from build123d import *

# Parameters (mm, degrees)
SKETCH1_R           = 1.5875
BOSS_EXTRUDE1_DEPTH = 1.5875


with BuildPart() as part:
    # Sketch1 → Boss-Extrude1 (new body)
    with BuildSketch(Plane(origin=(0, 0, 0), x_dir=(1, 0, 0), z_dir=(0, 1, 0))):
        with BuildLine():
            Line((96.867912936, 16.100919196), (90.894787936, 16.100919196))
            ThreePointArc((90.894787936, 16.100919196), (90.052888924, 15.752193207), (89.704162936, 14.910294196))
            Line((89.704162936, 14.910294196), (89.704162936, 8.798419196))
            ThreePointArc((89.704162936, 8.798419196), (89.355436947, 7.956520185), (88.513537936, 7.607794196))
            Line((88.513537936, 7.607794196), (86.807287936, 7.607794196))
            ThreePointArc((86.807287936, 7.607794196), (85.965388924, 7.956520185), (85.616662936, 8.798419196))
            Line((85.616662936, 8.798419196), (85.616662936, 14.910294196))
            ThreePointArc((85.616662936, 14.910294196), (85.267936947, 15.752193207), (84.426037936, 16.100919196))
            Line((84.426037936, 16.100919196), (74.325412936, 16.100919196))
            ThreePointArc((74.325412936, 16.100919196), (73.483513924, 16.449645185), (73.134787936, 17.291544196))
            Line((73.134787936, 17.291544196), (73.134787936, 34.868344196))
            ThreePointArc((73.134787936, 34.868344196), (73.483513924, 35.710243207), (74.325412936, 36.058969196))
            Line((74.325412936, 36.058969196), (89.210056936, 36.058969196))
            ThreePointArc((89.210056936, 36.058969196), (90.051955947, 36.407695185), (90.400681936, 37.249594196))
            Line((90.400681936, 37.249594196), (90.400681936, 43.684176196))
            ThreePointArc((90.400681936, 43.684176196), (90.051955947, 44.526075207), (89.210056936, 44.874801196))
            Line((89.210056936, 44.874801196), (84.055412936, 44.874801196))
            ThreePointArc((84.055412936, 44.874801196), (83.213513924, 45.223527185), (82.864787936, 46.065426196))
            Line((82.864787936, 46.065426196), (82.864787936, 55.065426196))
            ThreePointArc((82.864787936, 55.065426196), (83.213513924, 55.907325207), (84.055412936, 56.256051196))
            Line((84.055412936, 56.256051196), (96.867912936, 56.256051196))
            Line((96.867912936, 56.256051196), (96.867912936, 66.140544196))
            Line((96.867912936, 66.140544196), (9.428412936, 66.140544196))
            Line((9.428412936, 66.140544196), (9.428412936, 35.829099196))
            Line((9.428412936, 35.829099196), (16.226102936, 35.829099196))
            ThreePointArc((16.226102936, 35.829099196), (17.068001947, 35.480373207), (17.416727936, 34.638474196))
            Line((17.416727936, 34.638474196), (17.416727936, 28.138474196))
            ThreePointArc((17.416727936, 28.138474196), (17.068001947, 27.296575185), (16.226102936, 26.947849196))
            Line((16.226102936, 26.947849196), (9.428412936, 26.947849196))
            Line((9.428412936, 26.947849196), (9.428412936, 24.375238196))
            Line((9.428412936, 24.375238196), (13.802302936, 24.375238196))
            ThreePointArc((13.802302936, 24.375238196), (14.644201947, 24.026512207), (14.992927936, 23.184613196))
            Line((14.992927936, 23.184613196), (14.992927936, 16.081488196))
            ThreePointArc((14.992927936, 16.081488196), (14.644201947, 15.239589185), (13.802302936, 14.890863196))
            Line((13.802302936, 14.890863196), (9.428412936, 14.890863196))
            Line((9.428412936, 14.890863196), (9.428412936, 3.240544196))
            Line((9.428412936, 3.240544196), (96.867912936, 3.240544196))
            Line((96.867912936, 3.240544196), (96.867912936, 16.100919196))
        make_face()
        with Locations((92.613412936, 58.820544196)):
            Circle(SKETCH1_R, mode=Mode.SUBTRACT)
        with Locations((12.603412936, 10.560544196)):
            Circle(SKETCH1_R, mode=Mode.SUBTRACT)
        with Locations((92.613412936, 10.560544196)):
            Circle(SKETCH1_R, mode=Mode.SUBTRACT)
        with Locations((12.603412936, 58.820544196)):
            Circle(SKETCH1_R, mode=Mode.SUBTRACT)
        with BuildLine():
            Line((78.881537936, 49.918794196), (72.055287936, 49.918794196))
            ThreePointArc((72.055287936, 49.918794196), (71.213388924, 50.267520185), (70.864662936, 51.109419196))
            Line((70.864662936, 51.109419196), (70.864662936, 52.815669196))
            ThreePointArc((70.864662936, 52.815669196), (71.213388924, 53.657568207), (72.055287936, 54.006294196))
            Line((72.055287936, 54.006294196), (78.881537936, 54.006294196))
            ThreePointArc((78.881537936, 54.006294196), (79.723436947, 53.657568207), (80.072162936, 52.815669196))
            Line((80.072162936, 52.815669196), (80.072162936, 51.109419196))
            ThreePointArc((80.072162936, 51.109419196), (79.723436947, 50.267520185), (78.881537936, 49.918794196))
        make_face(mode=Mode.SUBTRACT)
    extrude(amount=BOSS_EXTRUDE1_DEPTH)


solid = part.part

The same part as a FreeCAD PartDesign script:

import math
import FreeCAD as App
import Part
import Sketcher

V = App.Vector
Q = App.Units.Quantity

doc = App.newDocument("Part")
body = doc.addObject("PartDesign::Body", "Body")

sketch1 = body.newObject("Sketcher::SketchObject", "Sketch")
sketch1.AttachmentSupport = (doc.getObject("XZ_Plane"), [""])
sketch1.MapMode = "FlatFace"
sketch1.addGeometry(Part.LineSegment(V(96.9, -16.1, 0), V(90.9, -16.1, 0)), False)
sketch1.addGeometry(Part.ArcOfCircle(Part.Circle(V(90.9, -14.9, 0), V(0, 0, 1), 1.2), math.radians(180), math.radians(270)), False)
sketch1.addGeometry(Part.LineSegment(V(89.7, -14.9, 0), V(89.7, -8.8, 0)), False)
sketch1.addGeometry(Part.ArcOfCircle(Part.Circle(V(88.5, -8.8, 0), V(0, 0, 1), 1.2), math.radians(0), math.radians(90)), False)
sketch1.addGeometry(Part.LineSegment(V(88.5, -7.6, 0), V(86.8, -7.6, 0)), False)
sketch1.addGeometry(Part.ArcOfCircle(Part.Circle(V(86.8, -8.8, 0), V(0, 0, 1), 1.2), math.radians(90), math.radians(180)), False)
sketch1.addGeometry(Part.LineSegment(V(85.6, -8.8, 0), V(85.6, -14.9, 0)), False)
sketch1.addGeometry(Part.ArcOfCircle(Part.Circle(V(84.4, -14.9, 0), V(0, 0, 1), 1.2), math.radians(-90), math.radians(0)), False)
sketch1.addGeometry(Part.LineSegment(V(84.4, -16.1, 0), V(74.3, -16.1, 0)), False)
sketch1.addGeometry(Part.ArcOfCircle(Part.Circle(V(74.3, -17.3, 0), V(0, 0, 1), 1.2), math.radians(90), math.radians(180)), False)
sketch1.addGeometry(Part.LineSegment(V(73.1, -17.3, 0), V(73.1, -34.9, 0)), False)
sketch1.addGeometry(Part.ArcOfCircle(Part.Circle(V(74.3, -34.9, 0), V(0, 0, 1), 1.2), math.radians(180), math.radians(270)), False)
sketch1.addGeometry(Part.LineSegment(V(74.3, -36.1, 0), V(89.2, -36.1, 0)), False)
sketch1.addGeometry(Part.ArcOfCircle(Part.Circle(V(89.2, -37.2, 0), V(0, 0, 1), 1.2), math.radians(0), math.radians(90)), False)
sketch1.addGeometry(Part.LineSegment(V(90.4, -37.2, 0), V(90.4, -43.7, 0)), False)
sketch1.addGeometry(Part.ArcOfCircle(Part.Circle(V(89.2, -43.7, 0), V(0, 0, 1), 1.2), math.radians(-90), math.radians(0)), False)
sketch1.addGeometry(Part.LineSegment(V(89.2, -44.9, 0), V(84.1, -44.9, 0)), False)
sketch1.addGeometry(Part.ArcOfCircle(Part.Circle(V(84.1, -46.1, 0), V(0, 0, 1), 1.2), math.radians(90), math.radians(180)), False)
sketch1.addGeometry(Part.LineSegment(V(82.9, -46.1, 0), V(82.9, -55.1, 0)), False)
sketch1.addGeometry(Part.ArcOfCircle(Part.Circle(V(84.1, -55.1, 0), V(0, 0, 1), 1.2), math.radians(180), math.radians(270)), False)
sketch1.addGeometry(Part.LineSegment(V(84.1, -56.3, 0), V(96.9, -56.3, 0)), False)
sketch1.addGeometry(Part.LineSegment(V(96.9, -56.3, 0), V(96.9, -66.1, 0)), False)
sketch1.addGeometry(Part.LineSegment(V(96.9, -66.1, 0), V(9.4, -66.1, 0)), False)
sketch1.addGeometry(Part.LineSegment(V(9.4, -66.1, 0), V(9.4, -35.8, 0)), False)
sketch1.addGeometry(Part.LineSegment(V(9.4, -35.8, 0), V(16.2, -35.8, 0)), False)
sketch1.addGeometry(Part.ArcOfCircle(Part.Circle(V(16.2, -34.6, 0), V(0, 0, 1), 1.2), math.radians(-90), math.radians(0)), False)
sketch1.addGeometry(Part.LineSegment(V(17.4, -34.6, 0), V(17.4, -28.1, 0)), False)
sketch1.addGeometry(Part.ArcOfCircle(Part.Circle(V(16.2, -28.1, 0), V(0, 0, 1), 1.2), math.radians(0), math.radians(90)), False)
sketch1.addGeometry(Part.LineSegment(V(16.2, -26.9, 0), V(9.4, -26.9, 0)), False)
sketch1.addGeometry(Part.LineSegment(V(9.4, -26.9, 0), V(9.4, -24.4, 0)), False)
sketch1.addGeometry(Part.LineSegment(V(9.4, -24.4, 0), V(13.8, -24.4, 0)), False)
sketch1.addGeometry(Part.ArcOfCircle(Part.Circle(V(13.8, -23.2, 0), V(0, 0, 1), 1.2), math.radians(-90), math.radians(0)), False)
sketch1.addGeometry(Part.LineSegment(V(15, -23.2, 0), V(15, -16.1, 0)), False)
sketch1.addGeometry(Part.ArcOfCircle(Part.Circle(V(13.8, -16.1, 0), V(0, 0, 1), 1.2), math.radians(0), math.radians(90)), False)
sketch1.addGeometry(Part.LineSegment(V(13.8, -14.9, 0), V(9.4, -14.9, 0)), False)
sketch1.addGeometry(Part.LineSegment(V(9.4, -14.9, 0), V(9.4, -3.2, 0)), False)
sketch1.addGeometry(Part.LineSegment(V(9.4, -3.2, 0), V(96.9, -3.2, 0)), False)
sketch1.addGeometry(Part.LineSegment(V(96.9, -3.2, 0), V(96.9, -16.1, 0)), False)
sketch1.addGeometry(Part.Circle(V(12.6, -10.6, 0), V(0, 0, 1), 1.6), False)
sketch1.addGeometry(Part.Circle(V(92.6, -10.6, 0), V(0, 0, 1), 1.6), False)
sketch1.addGeometry(Part.Circle(V(12.6, -58.8, 0), V(0, 0, 1), 1.6), False)
sketch1.addGeometry(Part.ArcOfCircle(Part.Circle(V(78.9, -51.1, 0), V(0, 0, 1), 1.2), math.radians(0), math.radians(90)), False)
sketch1.addGeometry(Part.LineSegment(V(78.9, -49.9, 0), V(72.1, -49.9, 0)), False)
sketch1.addGeometry(Part.ArcOfCircle(Part.Circle(V(72.1, -51.1, 0), V(0, 0, 1), 1.2), math.radians(90), math.radians(180)), False)
sketch1.addGeometry(Part.LineSegment(V(70.9, -51.1, 0), V(70.9, -52.8, 0)), False)
sketch1.addGeometry(Part.ArcOfCircle(Part.Circle(V(72.1, -52.8, 0), V(0, 0, 1), 1.2), math.radians(180), math.radians(270)), False)
sketch1.addGeometry(Part.LineSegment(V(72.1, -54, 0), V(78.9, -54, 0)), False)
sketch1.addGeometry(Part.ArcOfCircle(Part.Circle(V(78.9, -52.8, 0), V(0, 0, 1), 1.2), math.radians(-90), math.radians(0)), False)
sketch1.addGeometry(Part.LineSegment(V(80.1, -52.8, 0), V(80.1, -51.1, 0)), False)
sketch1.addGeometry(Part.Circle(V(92.6, -58.8, 0), V(0, 0, 1), 1.6), False)
sketch1.addConstraint(Sketcher.Constraint("Tangent", 0, 2, 1, 2))
sketch1.addConstraint(Sketcher.Constraint("Tangent", 1, 1, 2, 1))
sketch1.addConstraint(Sketcher.Constraint("Tangent", 2, 2, 3, 1))
sketch1.addConstraint(Sketcher.Constraint("Tangent", 3, 2, 4, 1))
sketch1.addConstraint(Sketcher.Constraint("Tangent", 4, 2, 5, 1))
sketch1.addConstraint(Sketcher.Constraint("Tangent", 5, 2, 6, 1))
sketch1.addConstraint(Sketcher.Constraint("Tangent", 6, 2, 7, 2))
sketch1.addConstraint(Sketcher.Constraint("Tangent", 7, 1, 8, 1))
sketch1.addConstraint(Sketcher.Constraint("Tangent", 8, 2, 9, 1))
sketch1.addConstraint(Sketcher.Constraint("Tangent", 9, 2, 10, 1))
sketch1.addConstraint(Sketcher.Constraint("Tangent", 10, 2, 11, 1))
sketch1.addConstraint(Sketcher.Constraint("Tangent", 11, 2, 12, 1))
sketch1.addConstraint(Sketcher.Constraint("Tangent", 12, 2, 13, 2))
sketch1.addConstraint(Sketcher.Constraint("Tangent", 13, 1, 14, 1))
sketch1.addConstraint(Sketcher.Constraint("Tangent", 14, 2, 15, 2))
sketch1.addConstraint(Sketcher.Constraint("Tangent", 15, 1, 16, 1))
sketch1.addConstraint(Sketcher.Constraint("Tangent", 16, 2, 17, 1))
sketch1.addConstraint(Sketcher.Constraint("Tangent", 17, 2, 18, 1))
sketch1.addConstraint(Sketcher.Constraint("Tangent", 18, 2, 19, 1))
sketch1.addConstraint(Sketcher.Constraint("Tangent", 19, 2, 20, 1))
sketch1.addConstraint(Sketcher.Constraint("Coincident", 20, 2, 21, 1))
sketch1.addConstraint(Sketcher.Constraint("Coincident", 21, 2, 22, 1))
sketch1.addConstraint(Sketcher.Constraint("Coincident", 22, 2, 23, 1))
sketch1.addConstraint(Sketcher.Constraint("Coincident", 23, 2, 24, 1))
sketch1.addConstraint(Sketcher.Constraint("Tangent", 24, 2, 25, 1))
sketch1.addConstraint(Sketcher.Constraint("Tangent", 25, 2, 26, 1))
sketch1.addConstraint(Sketcher.Constraint("Tangent", 26, 2, 27, 1))
sketch1.addConstraint(Sketcher.Constraint("Tangent", 27, 2, 28, 1))
sketch1.addConstraint(Sketcher.Constraint("Coincident", 28, 2, 29, 1))
sketch1.addConstraint(Sketcher.Constraint("Coincident", 29, 2, 30, 1))
sketch1.addConstraint(Sketcher.Constraint("Tangent", 30, 2, 31, 1))
sketch1.addConstraint(Sketcher.Constraint("Tangent", 31, 2, 32, 1))
sketch1.addConstraint(Sketcher.Constraint("Tangent", 32, 2, 33, 1))
sketch1.addConstraint(Sketcher.Constraint("Tangent", 33, 2, 34, 1))
sketch1.addConstraint(Sketcher.Constraint("Coincident", 34, 2, 35, 1))
sketch1.addConstraint(Sketcher.Constraint("Coincident", 35, 2, 36, 1))
sketch1.addConstraint(Sketcher.Constraint("Coincident", 36, 2, 37, 1))
sketch1.addConstraint(Sketcher.Constraint("Coincident", 37, 2, 0, 1))
sketch1.addConstraint(Sketcher.Constraint("Tangent", 41, 2, 42, 1))
sketch1.addConstraint(Sketcher.Constraint("Tangent", 42, 2, 43, 1))
sketch1.addConstraint(Sketcher.Constraint("Tangent", 43, 2, 44, 1))
sketch1.addConstraint(Sketcher.Constraint("Tangent", 44, 2, 45, 1))
sketch1.addConstraint(Sketcher.Constraint("Tangent", 45, 2, 46, 1))
sketch1.addConstraint(Sketcher.Constraint("Tangent", 46, 2, 47, 1))
sketch1.addConstraint(Sketcher.Constraint("Tangent", 47, 2, 48, 1))
sketch1.addConstraint(Sketcher.Constraint("Tangent", 48, 2, 41, 1))
sketch1.addConstraint(Sketcher.Constraint("Horizontal", 0))
sketch1.addConstraint(Sketcher.Constraint("Vertical", 2))
sketch1.addConstraint(Sketcher.Constraint("Horizontal", 4))
sketch1.addConstraint(Sketcher.Constraint("Vertical", 6))
sketch1.addConstraint(Sketcher.Constraint("Horizontal", 8))
sketch1.addConstraint(Sketcher.Constraint("Vertical", 10))
sketch1.addConstraint(Sketcher.Constraint("Horizontal", 12))
sketch1.addConstraint(Sketcher.Constraint("Vertical", 14))
sketch1.addConstraint(Sketcher.Constraint("Horizontal", 16))
sketch1.addConstraint(Sketcher.Constraint("Vertical", 18))
sketch1.addConstraint(Sketcher.Constraint("Horizontal", 20))
sketch1.addConstraint(Sketcher.Constraint("Vertical", 21))
sketch1.addConstraint(Sketcher.Constraint("Horizontal", 22))
sketch1.addConstraint(Sketcher.Constraint("Vertical", 23))
sketch1.addConstraint(Sketcher.Constraint("Horizontal", 24))
sketch1.addConstraint(Sketcher.Constraint("Vertical", 26))
sketch1.addConstraint(Sketcher.Constraint("Horizontal", 28))
sketch1.addConstraint(Sketcher.Constraint("Vertical", 29))
sketch1.addConstraint(Sketcher.Constraint("Horizontal", 30))
sketch1.addConstraint(Sketcher.Constraint("Vertical", 32))
sketch1.addConstraint(Sketcher.Constraint("Horizontal", 34))
sketch1.addConstraint(Sketcher.Constraint("Vertical", 35))
sketch1.addConstraint(Sketcher.Constraint("Horizontal", 36))
sketch1.addConstraint(Sketcher.Constraint("Vertical", 37))
sketch1.addConstraint(Sketcher.Constraint("Horizontal", 42))
sketch1.addConstraint(Sketcher.Constraint("Vertical", 44))
sketch1.addConstraint(Sketcher.Constraint("Horizontal", 46))
sketch1.addConstraint(Sketcher.Constraint("Vertical", 48))
sketch1.addConstraint(Sketcher.Constraint("Equal", 1, 3))
sketch1.addConstraint(Sketcher.Constraint("Equal", 3, 5))
sketch1.addConstraint(Sketcher.Constraint("Equal", 5, 7))
sketch1.addConstraint(Sketcher.Constraint("Equal", 7, 9))
sketch1.addConstraint(Sketcher.Constraint("Equal", 9, 11))
sketch1.addConstraint(Sketcher.Constraint("Equal", 11, 13))
sketch1.addConstraint(Sketcher.Constraint("Equal", 13, 15))
sketch1.addConstraint(Sketcher.Constraint("Equal", 15, 17))
sketch1.addConstraint(Sketcher.Constraint("Equal", 17, 19))
sketch1.addConstraint(Sketcher.Constraint("Equal", 19, 25))
sketch1.addConstraint(Sketcher.Constraint("Equal", 25, 27))
sketch1.addConstraint(Sketcher.Constraint("Equal", 27, 31))
sketch1.addConstraint(Sketcher.Constraint("Equal", 31, 33))
sketch1.addConstraint(Sketcher.Constraint("Equal", 38, 39))
sketch1.addConstraint(Sketcher.Constraint("Equal", 39, 40))
sketch1.addConstraint(Sketcher.Constraint("Equal", 33, 41))
sketch1.addConstraint(Sketcher.Constraint("Equal", 41, 43))
sketch1.addConstraint(Sketcher.Constraint("Equal", 43, 45))
sketch1.addConstraint(Sketcher.Constraint("Equal", 45, 47))
sketch1.addConstraint(Sketcher.Constraint("Equal", 40, 49))
sketch1.addConstraint(Sketcher.Constraint("Horizontal", 1, 3, 7, 3))
sketch1.addConstraint(Sketcher.Constraint("Horizontal", 38, 3, 39, 3))
sketch1.addConstraint(Sketcher.Constraint("Horizontal", 40, 3, 49, 3))
sketch1.addConstraint(Sketcher.Constraint("Vertical", 38, 3, 40, 3))
sketch1.addConstraint(Sketcher.Constraint("Vertical", 39, 3, 49, 3))
sketch1.addConstraint(Sketcher.Constraint("Vertical", 23, 2, 28, 2))
sketch1.addConstraint(Sketcher.Constraint("Vertical", 29, 2, 34, 2))
sketch1.addConstraint(Sketcher.Constraint("Vertical", 21, 2, 36, 2))
sketch1.addConstraint(Sketcher.Constraint("Equal", 4, 44))
sketch1.addConstraint(Sketcher.Constraint("Diameter", 38, Q("0.125 in")))
sketch1.addConstraint(Sketcher.Constraint("Radius", 1, Q("0.046875 in")))
sketch1.addConstraint(Sketcher.Constraint("DistanceY", 10, 2, 10, 1, Q("0.692 in")))
sketch1.addConstraint(Sketcher.Constraint("DistanceX", 22, 2, 22, 1, Q("3.4425 in")))
sketch1.addConstraint(Sketcher.Constraint("DistanceX", 20, 1, 20, 2, 12.8125))
sketch1.addConstraint(Sketcher.Constraint("DistanceY", 18, 2, 18, 1, 9.0))
sketch1.addConstraint(Sketcher.Constraint("DistanceY", 26, 1, 26, 2, 6.5))
sketch1.addConstraint(Sketcher.Constraint("DistanceX", 4, 2, 4, 1, 1.70625))
sketch1.addConstraint(Sketcher.Constraint("DistanceX", 24, 1, 24, 2, 6.79769))
sketch1.addConstraint(Sketcher.Constraint("DistanceX", 30, 1, 30, 2, 4.37389))
sketch1.addConstraint(Sketcher.Constraint("DistanceX", 42, 2, 42, 1, 6.82625))
sketch1.addConstraint(Sketcher.Constraint("DistanceY", 29, 1, 29, 2, 2.572611))
sketch1.addConstraint(Sketcher.Constraint("DistanceY", 35, 1, 35, 2, 11.650319))
sketch1.addConstraint(Sketcher.Constraint("DistanceY", 15, 1, -1, 1, 44.874801))
sketch1.addConstraint(Sketcher.Constraint("DistanceY", 23, 2, -1, 1, 35.829099))
sketch1.addConstraint(Sketcher.Constraint("DistanceX", 0, 2, 0, 1, 5.973125))
sketch1.addConstraint(Sketcher.Constraint("DistanceX", 8, 2, 8, 1, 10.100625))
sketch1.addConstraint(Sketcher.Constraint("DistanceX", 12, 1, 12, 2, 14.884644))
sketch1.addConstraint(Sketcher.Constraint("DistanceY", 2, 1, 2, 2, 6.111875))
sketch1.addConstraint(Sketcher.Constraint("DistanceY", 14, 2, 14, 1, 6.434582))
sketch1.addConstraint(Sketcher.Constraint("DistanceY", 21, 2, 21, 1, 9.884493))
sketch1.addConstraint(Sketcher.Constraint("DistanceY", 32, 1, 32, 2, 7.103125))
sketch1.addConstraint(Sketcher.Constraint("DistanceY", 41, 3, -1, 1, 51.109419))
sketch1.addConstraint(Sketcher.Constraint("DistanceX", -1, 1, 13, 1, 90.400682))
sketch1.addConstraint(Sketcher.Constraint("DistanceX", -1, 1, 38, 3, 12.603413))
sketch1.addConstraint(Sketcher.Constraint("DistanceY", 38, 3, -1, 1, 10.560544))
sketch1.addConstraint(Sketcher.Constraint("DistanceX", -1, 1, 39, 3, 92.613413))
sketch1.addConstraint(Sketcher.Constraint("DistanceY", 40, 3, -1, 1, 58.820544))
sketch1.addConstraint(Sketcher.Constraint("DistanceX", -1, 1, 41, 3, 78.881538))
pad1 = body.newObject("PartDesign::Pad", "Pad")
pad1.Profile = sketch1
pad1.Length = Q("0.0625 in")
pad1.Reversed = True

doc.recompute()
